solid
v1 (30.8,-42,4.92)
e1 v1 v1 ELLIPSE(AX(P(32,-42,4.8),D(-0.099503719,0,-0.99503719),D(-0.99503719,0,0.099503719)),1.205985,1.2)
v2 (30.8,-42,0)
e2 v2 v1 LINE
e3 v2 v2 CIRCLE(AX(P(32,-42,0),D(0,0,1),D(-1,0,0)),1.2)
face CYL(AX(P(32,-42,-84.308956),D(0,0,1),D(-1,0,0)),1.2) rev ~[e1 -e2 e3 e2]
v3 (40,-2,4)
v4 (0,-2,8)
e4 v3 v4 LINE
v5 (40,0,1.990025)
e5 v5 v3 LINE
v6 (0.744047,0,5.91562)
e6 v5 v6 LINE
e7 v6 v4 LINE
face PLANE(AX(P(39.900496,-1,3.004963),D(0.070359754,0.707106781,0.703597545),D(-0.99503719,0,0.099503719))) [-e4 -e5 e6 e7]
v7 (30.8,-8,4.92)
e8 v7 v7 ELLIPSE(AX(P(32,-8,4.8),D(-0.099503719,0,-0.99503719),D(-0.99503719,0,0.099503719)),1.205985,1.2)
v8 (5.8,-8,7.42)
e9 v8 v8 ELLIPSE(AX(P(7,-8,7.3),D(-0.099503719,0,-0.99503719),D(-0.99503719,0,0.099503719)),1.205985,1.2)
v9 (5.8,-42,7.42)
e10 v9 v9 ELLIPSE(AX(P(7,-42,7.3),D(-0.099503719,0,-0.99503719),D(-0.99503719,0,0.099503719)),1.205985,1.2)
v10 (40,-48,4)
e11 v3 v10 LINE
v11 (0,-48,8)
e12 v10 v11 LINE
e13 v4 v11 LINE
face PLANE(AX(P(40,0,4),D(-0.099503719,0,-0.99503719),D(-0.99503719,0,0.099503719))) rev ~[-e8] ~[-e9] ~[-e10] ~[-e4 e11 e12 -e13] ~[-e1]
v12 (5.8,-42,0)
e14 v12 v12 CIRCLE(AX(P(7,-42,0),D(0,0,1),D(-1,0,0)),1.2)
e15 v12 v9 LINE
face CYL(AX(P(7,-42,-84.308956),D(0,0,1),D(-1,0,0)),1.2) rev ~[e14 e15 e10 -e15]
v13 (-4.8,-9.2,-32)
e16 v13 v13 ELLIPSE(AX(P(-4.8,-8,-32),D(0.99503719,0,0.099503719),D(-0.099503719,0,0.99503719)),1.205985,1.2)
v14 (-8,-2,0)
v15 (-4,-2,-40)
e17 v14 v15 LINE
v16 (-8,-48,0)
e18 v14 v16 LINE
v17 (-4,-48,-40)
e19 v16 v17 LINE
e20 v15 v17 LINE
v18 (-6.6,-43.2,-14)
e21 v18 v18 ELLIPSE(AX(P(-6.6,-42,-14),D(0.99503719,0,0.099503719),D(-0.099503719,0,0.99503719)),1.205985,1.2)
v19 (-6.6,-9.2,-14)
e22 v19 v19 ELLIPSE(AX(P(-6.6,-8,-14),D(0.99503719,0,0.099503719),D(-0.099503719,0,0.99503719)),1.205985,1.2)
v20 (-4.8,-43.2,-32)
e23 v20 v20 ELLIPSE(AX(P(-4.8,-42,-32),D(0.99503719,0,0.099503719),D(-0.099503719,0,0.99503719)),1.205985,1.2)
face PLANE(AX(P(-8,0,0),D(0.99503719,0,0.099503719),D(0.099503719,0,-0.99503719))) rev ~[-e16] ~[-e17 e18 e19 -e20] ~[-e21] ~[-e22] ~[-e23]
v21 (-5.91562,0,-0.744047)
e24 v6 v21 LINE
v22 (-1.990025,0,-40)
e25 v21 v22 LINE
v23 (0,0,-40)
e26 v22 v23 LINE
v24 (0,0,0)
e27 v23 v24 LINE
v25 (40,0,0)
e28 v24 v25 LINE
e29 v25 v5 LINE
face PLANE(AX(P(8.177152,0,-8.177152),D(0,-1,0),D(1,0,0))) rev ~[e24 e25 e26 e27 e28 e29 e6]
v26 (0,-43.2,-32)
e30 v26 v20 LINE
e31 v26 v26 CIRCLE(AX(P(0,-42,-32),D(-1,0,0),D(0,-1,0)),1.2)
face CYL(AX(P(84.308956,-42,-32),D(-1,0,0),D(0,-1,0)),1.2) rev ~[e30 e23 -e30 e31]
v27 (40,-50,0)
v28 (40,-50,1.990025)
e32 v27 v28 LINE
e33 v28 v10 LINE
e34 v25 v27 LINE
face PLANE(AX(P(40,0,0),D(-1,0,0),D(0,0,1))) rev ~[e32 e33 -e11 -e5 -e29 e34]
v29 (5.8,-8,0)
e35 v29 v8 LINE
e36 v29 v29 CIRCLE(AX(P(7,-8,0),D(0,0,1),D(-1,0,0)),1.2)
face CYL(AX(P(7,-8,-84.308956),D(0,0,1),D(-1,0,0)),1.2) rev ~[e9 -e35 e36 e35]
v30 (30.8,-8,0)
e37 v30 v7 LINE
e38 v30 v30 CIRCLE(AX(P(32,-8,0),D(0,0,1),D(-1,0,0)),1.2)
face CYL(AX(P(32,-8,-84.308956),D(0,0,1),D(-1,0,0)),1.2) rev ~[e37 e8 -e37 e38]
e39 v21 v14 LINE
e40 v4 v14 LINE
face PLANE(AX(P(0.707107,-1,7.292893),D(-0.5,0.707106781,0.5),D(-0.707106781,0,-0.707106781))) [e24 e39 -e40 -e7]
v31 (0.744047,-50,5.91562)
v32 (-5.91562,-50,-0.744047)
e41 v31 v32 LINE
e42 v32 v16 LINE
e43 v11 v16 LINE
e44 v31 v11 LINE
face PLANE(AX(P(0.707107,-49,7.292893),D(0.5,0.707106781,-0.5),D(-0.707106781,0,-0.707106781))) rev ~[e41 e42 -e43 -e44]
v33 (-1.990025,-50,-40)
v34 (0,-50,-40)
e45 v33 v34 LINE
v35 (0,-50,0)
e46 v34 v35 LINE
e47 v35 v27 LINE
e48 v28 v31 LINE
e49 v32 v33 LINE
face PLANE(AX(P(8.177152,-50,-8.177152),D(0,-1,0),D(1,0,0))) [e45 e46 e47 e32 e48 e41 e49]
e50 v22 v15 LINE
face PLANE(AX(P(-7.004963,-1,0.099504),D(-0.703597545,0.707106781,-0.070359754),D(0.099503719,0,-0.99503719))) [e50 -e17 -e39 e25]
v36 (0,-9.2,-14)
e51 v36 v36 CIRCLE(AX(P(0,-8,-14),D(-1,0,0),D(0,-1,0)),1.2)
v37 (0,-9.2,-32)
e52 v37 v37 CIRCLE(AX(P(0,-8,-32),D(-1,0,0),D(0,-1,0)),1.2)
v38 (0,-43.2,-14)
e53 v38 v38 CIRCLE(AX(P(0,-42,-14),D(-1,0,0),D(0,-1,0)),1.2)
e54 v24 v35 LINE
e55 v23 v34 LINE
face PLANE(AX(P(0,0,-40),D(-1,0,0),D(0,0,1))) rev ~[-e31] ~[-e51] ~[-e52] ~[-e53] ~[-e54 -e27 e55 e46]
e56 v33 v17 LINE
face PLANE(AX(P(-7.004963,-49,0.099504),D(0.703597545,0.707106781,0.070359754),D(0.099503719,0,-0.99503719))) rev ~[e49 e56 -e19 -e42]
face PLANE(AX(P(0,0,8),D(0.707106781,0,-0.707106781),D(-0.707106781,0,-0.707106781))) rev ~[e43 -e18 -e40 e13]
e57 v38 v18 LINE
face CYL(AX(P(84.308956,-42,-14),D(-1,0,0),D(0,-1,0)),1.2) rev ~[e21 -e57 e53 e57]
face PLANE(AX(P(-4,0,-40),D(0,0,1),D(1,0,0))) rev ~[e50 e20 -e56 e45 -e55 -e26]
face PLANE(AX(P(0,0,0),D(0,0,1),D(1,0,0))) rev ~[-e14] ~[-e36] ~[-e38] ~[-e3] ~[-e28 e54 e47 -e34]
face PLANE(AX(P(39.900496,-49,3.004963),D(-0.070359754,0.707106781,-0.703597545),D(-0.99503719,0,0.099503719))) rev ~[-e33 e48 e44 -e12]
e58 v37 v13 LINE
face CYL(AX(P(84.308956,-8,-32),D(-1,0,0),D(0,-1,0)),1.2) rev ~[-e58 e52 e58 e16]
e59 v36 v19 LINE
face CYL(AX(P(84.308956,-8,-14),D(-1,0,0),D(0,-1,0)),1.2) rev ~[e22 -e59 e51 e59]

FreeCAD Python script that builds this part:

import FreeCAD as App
import Part
import Sketcher

V = App.Vector


def edges_at(feature, points):
    """Names of the edges that pass closest to the given points."""
    edges = feature.Shape.Edges
    near = lambda p: min(range(len(edges)), key=lambda i: edges[i].distToShape(Part.Vertex(*p))[0])
    return sorted({f"Edge{near(p) + 1}" for p in points})


def add_polygon(sketch, points):
    """Adds a closed chain of lines whose ends are joined by coincident constraints."""
    first, n = sketch.GeometryCount, len(points)
    for a, b in zip(points, points[1:] + points[:1]):
        sketch.addGeometry(Part.LineSegment(App.Vector(*a, 0), App.Vector(*b, 0)), False)
    for i in range(n):
        sketch.addConstraint(Sketcher.Constraint("Coincident", first + i, 2, first + (i + 1) % n, 1))

doc = App.newDocument("Part")
body = doc.addObject("PartDesign::Body", "Body")

# Sketch on XZ plane
sketch1 = body.newObject("Sketcher::SketchObject", "Sketch")
sketch1.AttachmentSupport = (doc.getObject("XZ_Plane"), [""])
sketch1.MapMode = "FlatFace"
add_polygon(sketch1, [(0, -40), (0, 0), (40, 0), (40, 4), (0, 8), (-8, 0), (-4, -40)])  # lines 0-6
sketch1.addConstraint(Sketcher.Constraint("Vertical", 0))
sketch1.addConstraint(Sketcher.Constraint("Horizontal", 1))
sketch1.addConstraint(Sketcher.Constraint("Vertical", 2))
sketch1.addConstraint(Sketcher.Constraint("Horizontal", 6))
sketch1.addConstraint(Sketcher.Constraint("Coincident", 0, 2, -1, 1))
sketch1.addConstraint(Sketcher.Constraint("PointOnObject", 3, 2, -2))
sketch1.addConstraint(Sketcher.Constraint("PointOnObject", 4, 2, -1))
sketch1.addConstraint(Sketcher.Constraint("Equal", 1, 0))
sketch1.addConstraint(Sketcher.Constraint("Equal", 6, 2))
sketch1.addConstraint(Sketcher.Constraint("Equal", 3, 5))
sketch1.addConstraint(Sketcher.Constraint("DistanceX", 1, 1, 1, 2, 40.0))
sketch1.addConstraint(Sketcher.Constraint("DistanceX", 6, 1, 6, 2, 4.0))
sketch1.addConstraint(Sketcher.Constraint("DistanceY", -1, 1, 3, 2, 8.0))
pad1 = body.newObject("PartDesign::Pad", "Pad")
pad1.Profile = sketch1
pad1.Length = 50

# Sketch on XY plane
sketch2 = body.newObject("Sketcher::SketchObject", "Sketch001")
sketch2.AttachmentSupport = (doc.getObject("XY_Plane"), [""])
sketch2.MapMode = "FlatFace"
sketch2.addGeometry(Part.Circle(V(32, -42, 0), V(0, 0, 1), 1.2), False)
sketch2.addGeometry(Part.Circle(V(32, -8, 0), V(0, 0, 1), 1.2), False)
sketch2.addGeometry(Part.Circle(V(7, -8, 0), V(0, 0, 1), 1.2), False)
sketch2.addGeometry(Part.Circle(V(7, -42, 0), V(0, 0, 1), 1.2), False)
sketch2.addConstraint(Sketcher.Constraint("Equal", 0, 1))
sketch2.addConstraint(Sketcher.Constraint("Equal", 1, 2))
sketch2.addConstraint(Sketcher.Constraint("Equal", 2, 3))
sketch2.addConstraint(Sketcher.Constraint("Horizontal", 1, 3, 2, 3))
sketch2.addConstraint(Sketcher.Constraint("Horizontal", 0, 3, 3, 3))
sketch2.addConstraint(Sketcher.Constraint("Vertical", 0, 3, 1, 3))
sketch2.addConstraint(Sketcher.Constraint("Vertical", 2, 3, 3, 3))
sketch2.addConstraint(Sketcher.Constraint("Diameter", 0, 2.4))
sketch2.addConstraint(Sketcher.Constraint("DistanceX", -1, 1, 0, 3, 32.0))
sketch2.addConstraint(Sketcher.Constraint("DistanceY", 0, 3, -1, 1, 42.0))
sketch2.addConstraint(Sketcher.Constraint("DistanceY", 1, 3, -1, 1, 8.0))
sketch2.addConstraint(Sketcher.Constraint("DistanceX", -1, 1, 2, 3, 7.0))
doc.recompute()
hole = body.newObject("PartDesign::Hole", "Hole")
hole.Profile = sketch2
hole.ThreadType = "None"
hole.Diameter = 2.4
hole.DepthType = "ThroughAll"
hole.Reversed = True

# Sketch on YZ plane
sketch3 = body.newObject("Sketcher::SketchObject", "Sketch002")
sketch3.AttachmentSupport = (doc.getObject("YZ_Plane"), [""])
sketch3.MapMode = "FlatFace"
sketch3.addGeometry(Part.Circle(V(-42, -32, 0), V(0, 0, 1), 1.2), False)
sketch3.addGeometry(Part.Circle(V(-42, -14, 0), V(0, 0, 1), 1.2), False)
sketch3.addGeometry(Part.Circle(V(-8, -32, 0), V(0, 0, 1), 1.2), False)
sketch3.addGeometry(Part.Circle(V(-8, -14, 0), V(0, 0, 1), 1.2), False)
sketch3.addConstraint(Sketcher.Constraint("Equal", 0, 1))
sketch3.addConstraint(Sketcher.Constraint("Equal", 1, 2))
sketch3.addConstraint(Sketcher.Constraint("Equal", 2, 3))
sketch3.addConstraint(Sketcher.Constraint("Horizontal", 0, 3, 2, 3))
sketch3.addConstraint(Sketcher.Constraint("Horizontal", 1, 3, 3, 3))
sketch3.addConstraint(Sketcher.Constraint("Vertical", 0, 3, 1, 3))
sketch3.addConstraint(Sketcher.Constraint("Vertical", 2, 3, 3, 3))
sketch3.addConstraint(Sketcher.Constraint("Diameter", 0, 2.4))
sketch3.addConstraint(Sketcher.Constraint("DistanceX", 0, 3, -1, 1, 42.0))
sketch3.addConstraint(Sketcher.Constraint("DistanceY", 0, 3, -1, 1, 32.0))
sketch3.addConstraint(Sketcher.Constraint("DistanceY", 1, 3, -1, 1, 14.0))
sketch3.addConstraint(Sketcher.Constraint("DistanceX", 2, 3, -1, 1, 8.0))
doc.recompute()
hole2 = body.newObject("PartDesign::Hole", "Hole001")
hole2.Profile = sketch3
hole2.ThreadType = "None"
hole2.Diameter = 2.4
hole2.DepthType = "ThroughAll"
doc.recompute()

chamfer = body.newObject("PartDesign::Chamfer", "Chamfer")
chamfer.Base = (hole2, edges_at(hole2, [
    (20, -50, 6),
    (-4, -50, 4),
    (-6, -50, -20),
    (-6, 0, -20),
    (20, 0, 6),
    (-4, 0, 4),
]))
chamfer.Size = 2

doc.recompute()
